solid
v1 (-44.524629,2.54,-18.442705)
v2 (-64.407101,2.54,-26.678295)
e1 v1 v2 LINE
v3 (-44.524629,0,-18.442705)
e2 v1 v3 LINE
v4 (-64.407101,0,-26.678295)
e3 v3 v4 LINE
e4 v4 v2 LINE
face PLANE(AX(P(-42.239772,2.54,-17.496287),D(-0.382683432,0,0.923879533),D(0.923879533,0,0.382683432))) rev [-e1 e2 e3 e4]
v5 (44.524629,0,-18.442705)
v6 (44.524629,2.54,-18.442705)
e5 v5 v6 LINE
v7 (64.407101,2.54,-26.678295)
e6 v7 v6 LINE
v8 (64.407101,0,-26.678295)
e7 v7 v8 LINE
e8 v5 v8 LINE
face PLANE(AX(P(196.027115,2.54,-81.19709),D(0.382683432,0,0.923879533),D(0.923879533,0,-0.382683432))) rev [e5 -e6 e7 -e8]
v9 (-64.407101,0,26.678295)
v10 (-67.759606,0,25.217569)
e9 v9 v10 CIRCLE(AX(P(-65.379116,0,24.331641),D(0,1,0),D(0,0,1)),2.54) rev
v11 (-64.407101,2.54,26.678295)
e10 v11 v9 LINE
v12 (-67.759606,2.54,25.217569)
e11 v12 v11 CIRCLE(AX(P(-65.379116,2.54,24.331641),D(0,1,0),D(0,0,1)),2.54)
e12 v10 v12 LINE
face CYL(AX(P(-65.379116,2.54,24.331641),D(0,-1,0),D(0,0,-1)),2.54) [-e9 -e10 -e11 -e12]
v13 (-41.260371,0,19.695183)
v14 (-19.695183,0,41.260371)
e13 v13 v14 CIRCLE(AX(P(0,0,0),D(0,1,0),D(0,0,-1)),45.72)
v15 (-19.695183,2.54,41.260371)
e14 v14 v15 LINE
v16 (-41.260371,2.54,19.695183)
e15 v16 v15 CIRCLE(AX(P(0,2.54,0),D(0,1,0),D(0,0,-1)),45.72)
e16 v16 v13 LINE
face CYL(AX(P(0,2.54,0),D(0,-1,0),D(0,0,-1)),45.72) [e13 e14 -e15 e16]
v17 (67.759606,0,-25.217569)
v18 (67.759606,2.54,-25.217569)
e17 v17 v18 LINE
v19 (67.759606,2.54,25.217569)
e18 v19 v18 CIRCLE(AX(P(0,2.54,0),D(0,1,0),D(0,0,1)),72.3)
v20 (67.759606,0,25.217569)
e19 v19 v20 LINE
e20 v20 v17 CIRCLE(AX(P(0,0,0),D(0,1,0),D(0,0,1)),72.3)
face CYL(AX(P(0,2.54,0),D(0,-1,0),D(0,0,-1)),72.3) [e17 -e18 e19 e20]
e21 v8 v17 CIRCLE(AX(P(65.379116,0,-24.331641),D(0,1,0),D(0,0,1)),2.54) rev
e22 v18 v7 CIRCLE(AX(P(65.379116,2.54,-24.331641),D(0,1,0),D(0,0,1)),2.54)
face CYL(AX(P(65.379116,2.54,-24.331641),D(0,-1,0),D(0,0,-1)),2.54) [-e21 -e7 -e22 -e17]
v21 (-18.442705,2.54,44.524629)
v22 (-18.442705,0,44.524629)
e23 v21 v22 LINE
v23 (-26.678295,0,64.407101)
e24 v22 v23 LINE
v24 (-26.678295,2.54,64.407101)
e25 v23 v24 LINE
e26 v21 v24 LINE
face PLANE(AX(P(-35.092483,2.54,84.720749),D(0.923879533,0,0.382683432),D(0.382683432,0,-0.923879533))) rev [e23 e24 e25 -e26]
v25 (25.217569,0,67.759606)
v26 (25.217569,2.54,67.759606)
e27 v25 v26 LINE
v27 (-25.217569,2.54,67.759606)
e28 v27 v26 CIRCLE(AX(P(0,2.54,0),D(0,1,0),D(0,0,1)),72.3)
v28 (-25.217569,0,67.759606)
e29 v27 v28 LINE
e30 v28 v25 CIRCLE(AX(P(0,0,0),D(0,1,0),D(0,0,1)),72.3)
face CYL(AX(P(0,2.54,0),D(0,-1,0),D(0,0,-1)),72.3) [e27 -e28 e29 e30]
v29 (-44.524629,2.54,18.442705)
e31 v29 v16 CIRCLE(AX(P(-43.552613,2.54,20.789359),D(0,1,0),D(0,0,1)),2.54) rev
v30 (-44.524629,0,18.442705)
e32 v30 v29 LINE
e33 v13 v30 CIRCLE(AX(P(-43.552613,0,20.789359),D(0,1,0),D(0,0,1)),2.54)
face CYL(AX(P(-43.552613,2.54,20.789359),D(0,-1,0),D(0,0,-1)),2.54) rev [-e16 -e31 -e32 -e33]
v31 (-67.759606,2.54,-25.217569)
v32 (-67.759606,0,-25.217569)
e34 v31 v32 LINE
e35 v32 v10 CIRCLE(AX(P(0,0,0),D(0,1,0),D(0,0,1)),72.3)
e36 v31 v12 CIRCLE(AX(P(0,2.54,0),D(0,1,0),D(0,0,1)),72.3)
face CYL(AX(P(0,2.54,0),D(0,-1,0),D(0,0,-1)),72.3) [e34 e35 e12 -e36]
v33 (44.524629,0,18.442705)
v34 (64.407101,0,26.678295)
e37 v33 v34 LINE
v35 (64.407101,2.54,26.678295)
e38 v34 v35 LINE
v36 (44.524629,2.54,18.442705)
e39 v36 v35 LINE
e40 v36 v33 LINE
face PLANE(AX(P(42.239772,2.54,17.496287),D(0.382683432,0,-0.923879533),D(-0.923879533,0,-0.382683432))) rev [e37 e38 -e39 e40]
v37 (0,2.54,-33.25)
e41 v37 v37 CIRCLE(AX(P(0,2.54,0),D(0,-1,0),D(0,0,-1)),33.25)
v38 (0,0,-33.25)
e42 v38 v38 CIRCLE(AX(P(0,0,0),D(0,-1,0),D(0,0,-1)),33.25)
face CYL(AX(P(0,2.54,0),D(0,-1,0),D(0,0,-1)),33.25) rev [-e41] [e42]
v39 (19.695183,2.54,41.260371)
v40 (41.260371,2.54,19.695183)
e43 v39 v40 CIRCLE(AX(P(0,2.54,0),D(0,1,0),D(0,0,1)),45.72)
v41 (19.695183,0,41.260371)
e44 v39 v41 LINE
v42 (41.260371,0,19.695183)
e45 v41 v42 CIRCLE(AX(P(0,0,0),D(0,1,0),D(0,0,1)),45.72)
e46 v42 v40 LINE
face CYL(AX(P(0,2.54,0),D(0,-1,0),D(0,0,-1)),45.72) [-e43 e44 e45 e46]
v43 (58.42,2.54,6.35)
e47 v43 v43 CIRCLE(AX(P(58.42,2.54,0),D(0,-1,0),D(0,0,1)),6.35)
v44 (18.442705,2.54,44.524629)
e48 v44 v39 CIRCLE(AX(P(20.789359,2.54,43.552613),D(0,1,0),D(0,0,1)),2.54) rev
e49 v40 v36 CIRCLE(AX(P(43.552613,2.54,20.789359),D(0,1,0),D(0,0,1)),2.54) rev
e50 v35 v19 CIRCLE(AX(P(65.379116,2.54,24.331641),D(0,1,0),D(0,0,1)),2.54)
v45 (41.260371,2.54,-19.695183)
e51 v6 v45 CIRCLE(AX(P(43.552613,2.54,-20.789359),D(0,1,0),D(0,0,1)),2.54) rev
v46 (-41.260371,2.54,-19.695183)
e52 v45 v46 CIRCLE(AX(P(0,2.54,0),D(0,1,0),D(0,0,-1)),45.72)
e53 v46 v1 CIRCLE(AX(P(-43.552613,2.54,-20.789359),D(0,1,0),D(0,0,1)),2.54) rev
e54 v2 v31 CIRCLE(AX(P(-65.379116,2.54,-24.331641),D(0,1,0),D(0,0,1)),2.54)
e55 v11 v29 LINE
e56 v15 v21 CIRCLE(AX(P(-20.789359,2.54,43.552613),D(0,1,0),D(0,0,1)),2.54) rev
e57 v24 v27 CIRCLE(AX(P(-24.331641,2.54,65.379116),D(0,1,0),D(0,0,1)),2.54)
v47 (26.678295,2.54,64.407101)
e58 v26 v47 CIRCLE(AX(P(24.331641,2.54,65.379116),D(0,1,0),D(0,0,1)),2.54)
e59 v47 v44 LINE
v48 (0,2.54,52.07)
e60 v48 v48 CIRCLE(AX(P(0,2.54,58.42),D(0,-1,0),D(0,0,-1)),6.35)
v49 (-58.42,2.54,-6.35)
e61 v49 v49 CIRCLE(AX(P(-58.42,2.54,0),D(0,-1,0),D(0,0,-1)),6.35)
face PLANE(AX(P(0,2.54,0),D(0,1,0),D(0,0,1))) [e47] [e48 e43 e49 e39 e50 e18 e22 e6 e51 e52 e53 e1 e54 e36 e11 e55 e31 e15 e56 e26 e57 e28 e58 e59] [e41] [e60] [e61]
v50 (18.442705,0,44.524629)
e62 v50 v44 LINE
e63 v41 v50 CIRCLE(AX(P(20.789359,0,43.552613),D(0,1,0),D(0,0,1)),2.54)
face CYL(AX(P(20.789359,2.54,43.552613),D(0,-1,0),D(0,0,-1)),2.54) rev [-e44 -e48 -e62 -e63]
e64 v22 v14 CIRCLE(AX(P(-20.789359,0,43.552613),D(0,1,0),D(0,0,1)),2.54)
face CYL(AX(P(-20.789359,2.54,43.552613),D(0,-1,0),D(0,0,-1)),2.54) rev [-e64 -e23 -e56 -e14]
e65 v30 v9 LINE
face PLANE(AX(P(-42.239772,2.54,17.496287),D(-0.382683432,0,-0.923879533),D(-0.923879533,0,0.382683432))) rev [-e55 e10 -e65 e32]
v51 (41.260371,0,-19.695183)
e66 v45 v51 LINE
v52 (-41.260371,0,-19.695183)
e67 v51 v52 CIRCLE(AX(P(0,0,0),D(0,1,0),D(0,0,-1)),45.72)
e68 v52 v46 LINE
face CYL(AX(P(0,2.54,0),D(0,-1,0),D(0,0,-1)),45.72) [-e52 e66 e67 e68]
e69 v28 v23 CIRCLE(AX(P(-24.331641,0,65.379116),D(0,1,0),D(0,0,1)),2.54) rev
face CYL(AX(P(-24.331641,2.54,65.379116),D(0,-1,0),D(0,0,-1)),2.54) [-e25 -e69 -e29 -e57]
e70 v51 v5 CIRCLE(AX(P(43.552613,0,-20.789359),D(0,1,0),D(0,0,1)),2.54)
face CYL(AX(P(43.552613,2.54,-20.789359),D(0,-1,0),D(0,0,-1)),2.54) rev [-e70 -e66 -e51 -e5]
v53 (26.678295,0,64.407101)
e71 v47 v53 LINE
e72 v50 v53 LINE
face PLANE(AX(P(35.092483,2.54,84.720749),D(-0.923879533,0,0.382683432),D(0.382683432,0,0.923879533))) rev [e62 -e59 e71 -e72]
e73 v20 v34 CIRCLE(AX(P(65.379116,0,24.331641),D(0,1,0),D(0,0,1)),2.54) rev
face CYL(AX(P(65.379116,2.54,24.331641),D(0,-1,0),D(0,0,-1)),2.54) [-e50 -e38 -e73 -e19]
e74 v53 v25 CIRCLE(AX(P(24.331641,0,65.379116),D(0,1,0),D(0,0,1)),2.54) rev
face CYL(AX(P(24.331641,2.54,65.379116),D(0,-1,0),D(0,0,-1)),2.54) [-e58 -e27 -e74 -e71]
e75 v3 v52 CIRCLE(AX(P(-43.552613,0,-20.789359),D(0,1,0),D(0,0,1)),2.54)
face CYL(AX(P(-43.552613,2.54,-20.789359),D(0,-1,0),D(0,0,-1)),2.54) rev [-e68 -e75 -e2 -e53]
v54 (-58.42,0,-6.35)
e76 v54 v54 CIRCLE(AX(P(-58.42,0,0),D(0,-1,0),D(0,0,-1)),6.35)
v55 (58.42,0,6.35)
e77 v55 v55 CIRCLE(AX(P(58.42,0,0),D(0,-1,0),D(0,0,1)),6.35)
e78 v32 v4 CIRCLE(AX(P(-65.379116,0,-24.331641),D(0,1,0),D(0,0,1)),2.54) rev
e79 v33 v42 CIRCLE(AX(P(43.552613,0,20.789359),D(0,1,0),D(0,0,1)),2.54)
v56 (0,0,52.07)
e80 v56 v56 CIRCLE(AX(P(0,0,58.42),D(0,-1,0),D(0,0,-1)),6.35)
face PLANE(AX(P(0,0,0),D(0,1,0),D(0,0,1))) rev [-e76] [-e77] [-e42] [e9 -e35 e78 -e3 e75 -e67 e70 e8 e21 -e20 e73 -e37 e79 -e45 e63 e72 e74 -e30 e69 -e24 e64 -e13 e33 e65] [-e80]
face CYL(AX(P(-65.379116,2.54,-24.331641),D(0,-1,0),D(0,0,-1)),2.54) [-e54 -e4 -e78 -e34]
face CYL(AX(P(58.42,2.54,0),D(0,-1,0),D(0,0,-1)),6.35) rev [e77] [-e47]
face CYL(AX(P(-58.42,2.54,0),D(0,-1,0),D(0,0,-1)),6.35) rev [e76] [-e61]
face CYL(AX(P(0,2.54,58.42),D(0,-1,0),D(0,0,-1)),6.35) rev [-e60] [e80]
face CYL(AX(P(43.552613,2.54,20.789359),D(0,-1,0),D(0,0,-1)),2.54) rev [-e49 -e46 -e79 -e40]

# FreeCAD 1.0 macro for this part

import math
import FreeCAD as App
import Part
import Sketcher

V = App.Vector
Q = App.Units.Quantity


def edges_at(feature, points):
    """Names of the edges that pass closest to the given points."""
    edges = feature.Shape.Edges
    near = lambda p: min(range(len(edges)), key=lambda i: edges[i].distToShape(Part.Vertex(*p))[0])
    return sorted({f"Edge{near(p) + 1}" for p in points})

doc = App.newDocument("Part")
body = doc.addObject("PartDesign::Body", "Body")

# Sketch on XZ plane
sketch1 = body.newObject("Sketcher::SketchObject", "Sketch")
sketch1.AttachmentSupport = (doc.getObject("XZ_Plane"), [""])
sketch1.MapMode = "FlatFace"
sketch1.addGeometry(Part.Circle(V(0, 0, 0), V(0, 0, 1), 72), False)
sketch1.addConstraint([
    Sketcher.Constraint("Coincident", 0, 3, -1, 1),
    Sketcher.Constraint("Diameter", 0, 144.6),
])
pad1 = body.newObject("PartDesign::Pad", "Pad")
pad1.Profile = sketch1
pad1.Length = Q("0.1 in")
pad1.Reversed = True

# Sketch on XZ plane
sketch2 = body.newObject("Sketcher::SketchObject", "Sketch001")
sketch2.AttachmentSupport = (doc.getObject("XZ_Plane"), [""])
sketch2.MapMode = "FlatFace"
sketch2.addGeometry([
    Part.Circle(V(-58, 0, 0), V(0, 0, 1), 6),
    Part.Circle(V(58, 0, 0), V(0, 0, 1), 6),
    Part.Circle(V(0, 58, 0), V(0, 0, 1), 6),
], False)
sketch2.addConstraint([
    Sketcher.Constraint("Equal", 0, 1),
    Sketcher.Constraint("Equal", 1, 2),
    Sketcher.Constraint("Symmetric", 0, 3, 1, 3, -1, 1),
    Sketcher.Constraint("PointOnObject", 0, 3, -1),
    Sketcher.Constraint("PointOnObject", 2, 3, -2),
    Sketcher.Constraint("Diameter", 0, Q("0.5 in")),
    Sketcher.Constraint("DistanceX", 0, 3, -1, 1, Q("2.3 in")),
    Sketcher.Constraint("DistanceY", -1, 1, 2, 3, Q("2.3 in")),
])
pocket1 = body.newObject("PartDesign::Pocket", "Pocket")
pocket1.Profile = sketch2
pocket1.Type = "ThroughAll"

# Sketch on XZ plane
sketch3 = body.newObject("Sketcher::SketchObject", "Sketch002")
sketch3.AttachmentSupport = (doc.getObject("XZ_Plane"), [""])
sketch3.MapMode = "FlatFace"
sketch3.addGeometry(Part.Circle(V(0, 0, 0), V(0, 0, 1), 33), False)
sketch3.addConstraint([
    Sketcher.Constraint("Coincident", 0, 3, -1, 1),
    Sketcher.Constraint("Diameter", 0, 66.5),
])
pocket2 = body.newObject("PartDesign::Pocket", "Pocket001")
pocket2.Profile = sketch3
pocket2.Type = "ThroughAll"

# Sketch on XZ plane
sketch4 = body.newObject("Sketcher::SketchObject", "Sketch003")
sketch4.AttachmentSupport = (doc.getObject("XZ_Plane"), [""])
sketch4.MapMode = "FlatFace"
sketch4.addGeometry([
    Part.LineSegment(V(-42, -17, 0), V(-196, -81, 0)),  # 0
    Part.LineSegment(V(-196, -81, 0), V(196, -81, 0)),  # 1
    Part.LineSegment(V(196, -81, 0), V(42, -17, 0)),  # 2
    Part.ArcOfCircle(Part.Circle(V(0, 0, 0), V(0, 0, 1), 46), math.radians(-157), math.radians(-23)),  # 3
    Part.LineSegment(V(-90, 37, 0), V(-42, 17, 0)),  # 4
    Part.ArcOfCircle(Part.Circle(V(0, 0, 0), V(0, 0, 1), 46), math.radians(112), math.radians(158)),  # 5
    Part.LineSegment(V(-17, 42, 0), V(-35, 85, 0)),  # 6
    Part.LineSegment(V(-35, 85, 0), V(-90, 37, 0)),  # 7
    Part.LineSegment(V(42, 17, 0), V(90, 37, 0)),  # 8
    Part.LineSegment(V(90, 37, 0), V(35, 85, 0)),  # 9
    Part.LineSegment(V(35, 85, 0), V(17, 42, 0)),  # 10
    Part.ArcOfCircle(Part.Circle(V(0, 0, 0), V(0, 0, 1), 46), math.radians(22), math.radians(68)),  # 11
], False)
sketch4.addConstraint([
    Sketcher.Constraint("Coincident", 0, 2, 1, 1),
    Sketcher.Constraint("Coincident", 1, 2, 2, 1),
    Sketcher.Constraint("Coincident", 2, 2, 3, 2),
    Sketcher.Constraint("Coincident", 3, 1, 0, 1),
    Sketcher.Constraint("Coincident", 4, 2, 5, 2),
    Sketcher.Constraint("Coincident", 5, 1, 6, 1),
    Sketcher.Constraint("Coincident", 6, 2, 7, 1),
    Sketcher.Constraint("Coincident", 7, 2, 4, 1),
    Sketcher.Constraint("Coincident", 8, 2, 9, 1),
    Sketcher.Constraint("Coincident", 9, 2, 10, 1),
    Sketcher.Constraint("Coincident", 10, 2, 11, 2),
    Sketcher.Constraint("Coincident", 11, 1, 8, 1),
    Sketcher.Constraint("Horizontal", 1),
    Sketcher.Constraint("Coincident", 3, 3, -1, 1),
    Sketcher.Constraint("Coincident", 5, 3, -1, 1),
    Sketcher.Constraint("Coincident", 11, 3, -1, 1),
    Sketcher.Constraint("Equal", 3, 5),
    Sketcher.Constraint("Equal", 5, 11),
    Sketcher.Constraint("Symmetric", 7, 2, 8, 2, -2),
    Sketcher.Constraint("Symmetric", 6, 2, 9, 2, -2),
    Sketcher.Constraint("Parallel", 2, 4),
    Sketcher.Constraint("Perpendicular", 0, 6),
    Sketcher.Constraint("Perpendicular", 6, 8),
    Sketcher.Constraint("Perpendicular", 4, 10),
    Sketcher.Constraint("Horizontal", 2, 2, 3, 1),
    Sketcher.Constraint("Horizontal", 5, 1, 10, 2),
    Sketcher.Constraint("Vertical", 3, 1, 4, 2),
    Sketcher.Constraint("Radius", 3, Q("1.8 in")),
    Sketcher.Constraint("Angle", 0, Q("-157.5 deg")),
    Sketcher.Constraint("DistanceX", 1, 1, 1, 2, 392.05423),
    Sketcher.Constraint("Distance", 0, 166.45822),
    Sketcher.Constraint("Distance", 6, 45.981078),
    Sketcher.Constraint("Distance", 7, 72.69212),
    Sketcher.Constraint("DistanceY", -1, 1, 6, 2, 84.720749),
])
pocket3 = body.newObject("PartDesign::Pocket", "Pocket002")
pocket3.Profile = sketch4
pocket3.Length = Q("0.1 in")
doc.recompute()

fillet = body.newObject("PartDesign::Fillet", "Fillet")
fillet.Base = (pocket3, edges_at(pocket3, [
    (66.796, 1.27, -27.668),
    (42.24, 1.27, -17.496),
    (-66.796, 1.27, -27.668),
    (-42.24, 1.27, -17.496),
    (-66.796, 1.27, 27.668),
    (-42.24, 1.27, 17.496),
    (-27.668, 1.27, 66.796),
    (-17.496, 1.27, 42.24),
    (27.668, 1.27, 66.796),
    (17.496, 1.27, 42.24),
    (66.796, 1.27, 27.668),
    (42.24, 1.27, 17.496),
]))
fillet.Radius = Q("0.1 in")

doc.recompute()
